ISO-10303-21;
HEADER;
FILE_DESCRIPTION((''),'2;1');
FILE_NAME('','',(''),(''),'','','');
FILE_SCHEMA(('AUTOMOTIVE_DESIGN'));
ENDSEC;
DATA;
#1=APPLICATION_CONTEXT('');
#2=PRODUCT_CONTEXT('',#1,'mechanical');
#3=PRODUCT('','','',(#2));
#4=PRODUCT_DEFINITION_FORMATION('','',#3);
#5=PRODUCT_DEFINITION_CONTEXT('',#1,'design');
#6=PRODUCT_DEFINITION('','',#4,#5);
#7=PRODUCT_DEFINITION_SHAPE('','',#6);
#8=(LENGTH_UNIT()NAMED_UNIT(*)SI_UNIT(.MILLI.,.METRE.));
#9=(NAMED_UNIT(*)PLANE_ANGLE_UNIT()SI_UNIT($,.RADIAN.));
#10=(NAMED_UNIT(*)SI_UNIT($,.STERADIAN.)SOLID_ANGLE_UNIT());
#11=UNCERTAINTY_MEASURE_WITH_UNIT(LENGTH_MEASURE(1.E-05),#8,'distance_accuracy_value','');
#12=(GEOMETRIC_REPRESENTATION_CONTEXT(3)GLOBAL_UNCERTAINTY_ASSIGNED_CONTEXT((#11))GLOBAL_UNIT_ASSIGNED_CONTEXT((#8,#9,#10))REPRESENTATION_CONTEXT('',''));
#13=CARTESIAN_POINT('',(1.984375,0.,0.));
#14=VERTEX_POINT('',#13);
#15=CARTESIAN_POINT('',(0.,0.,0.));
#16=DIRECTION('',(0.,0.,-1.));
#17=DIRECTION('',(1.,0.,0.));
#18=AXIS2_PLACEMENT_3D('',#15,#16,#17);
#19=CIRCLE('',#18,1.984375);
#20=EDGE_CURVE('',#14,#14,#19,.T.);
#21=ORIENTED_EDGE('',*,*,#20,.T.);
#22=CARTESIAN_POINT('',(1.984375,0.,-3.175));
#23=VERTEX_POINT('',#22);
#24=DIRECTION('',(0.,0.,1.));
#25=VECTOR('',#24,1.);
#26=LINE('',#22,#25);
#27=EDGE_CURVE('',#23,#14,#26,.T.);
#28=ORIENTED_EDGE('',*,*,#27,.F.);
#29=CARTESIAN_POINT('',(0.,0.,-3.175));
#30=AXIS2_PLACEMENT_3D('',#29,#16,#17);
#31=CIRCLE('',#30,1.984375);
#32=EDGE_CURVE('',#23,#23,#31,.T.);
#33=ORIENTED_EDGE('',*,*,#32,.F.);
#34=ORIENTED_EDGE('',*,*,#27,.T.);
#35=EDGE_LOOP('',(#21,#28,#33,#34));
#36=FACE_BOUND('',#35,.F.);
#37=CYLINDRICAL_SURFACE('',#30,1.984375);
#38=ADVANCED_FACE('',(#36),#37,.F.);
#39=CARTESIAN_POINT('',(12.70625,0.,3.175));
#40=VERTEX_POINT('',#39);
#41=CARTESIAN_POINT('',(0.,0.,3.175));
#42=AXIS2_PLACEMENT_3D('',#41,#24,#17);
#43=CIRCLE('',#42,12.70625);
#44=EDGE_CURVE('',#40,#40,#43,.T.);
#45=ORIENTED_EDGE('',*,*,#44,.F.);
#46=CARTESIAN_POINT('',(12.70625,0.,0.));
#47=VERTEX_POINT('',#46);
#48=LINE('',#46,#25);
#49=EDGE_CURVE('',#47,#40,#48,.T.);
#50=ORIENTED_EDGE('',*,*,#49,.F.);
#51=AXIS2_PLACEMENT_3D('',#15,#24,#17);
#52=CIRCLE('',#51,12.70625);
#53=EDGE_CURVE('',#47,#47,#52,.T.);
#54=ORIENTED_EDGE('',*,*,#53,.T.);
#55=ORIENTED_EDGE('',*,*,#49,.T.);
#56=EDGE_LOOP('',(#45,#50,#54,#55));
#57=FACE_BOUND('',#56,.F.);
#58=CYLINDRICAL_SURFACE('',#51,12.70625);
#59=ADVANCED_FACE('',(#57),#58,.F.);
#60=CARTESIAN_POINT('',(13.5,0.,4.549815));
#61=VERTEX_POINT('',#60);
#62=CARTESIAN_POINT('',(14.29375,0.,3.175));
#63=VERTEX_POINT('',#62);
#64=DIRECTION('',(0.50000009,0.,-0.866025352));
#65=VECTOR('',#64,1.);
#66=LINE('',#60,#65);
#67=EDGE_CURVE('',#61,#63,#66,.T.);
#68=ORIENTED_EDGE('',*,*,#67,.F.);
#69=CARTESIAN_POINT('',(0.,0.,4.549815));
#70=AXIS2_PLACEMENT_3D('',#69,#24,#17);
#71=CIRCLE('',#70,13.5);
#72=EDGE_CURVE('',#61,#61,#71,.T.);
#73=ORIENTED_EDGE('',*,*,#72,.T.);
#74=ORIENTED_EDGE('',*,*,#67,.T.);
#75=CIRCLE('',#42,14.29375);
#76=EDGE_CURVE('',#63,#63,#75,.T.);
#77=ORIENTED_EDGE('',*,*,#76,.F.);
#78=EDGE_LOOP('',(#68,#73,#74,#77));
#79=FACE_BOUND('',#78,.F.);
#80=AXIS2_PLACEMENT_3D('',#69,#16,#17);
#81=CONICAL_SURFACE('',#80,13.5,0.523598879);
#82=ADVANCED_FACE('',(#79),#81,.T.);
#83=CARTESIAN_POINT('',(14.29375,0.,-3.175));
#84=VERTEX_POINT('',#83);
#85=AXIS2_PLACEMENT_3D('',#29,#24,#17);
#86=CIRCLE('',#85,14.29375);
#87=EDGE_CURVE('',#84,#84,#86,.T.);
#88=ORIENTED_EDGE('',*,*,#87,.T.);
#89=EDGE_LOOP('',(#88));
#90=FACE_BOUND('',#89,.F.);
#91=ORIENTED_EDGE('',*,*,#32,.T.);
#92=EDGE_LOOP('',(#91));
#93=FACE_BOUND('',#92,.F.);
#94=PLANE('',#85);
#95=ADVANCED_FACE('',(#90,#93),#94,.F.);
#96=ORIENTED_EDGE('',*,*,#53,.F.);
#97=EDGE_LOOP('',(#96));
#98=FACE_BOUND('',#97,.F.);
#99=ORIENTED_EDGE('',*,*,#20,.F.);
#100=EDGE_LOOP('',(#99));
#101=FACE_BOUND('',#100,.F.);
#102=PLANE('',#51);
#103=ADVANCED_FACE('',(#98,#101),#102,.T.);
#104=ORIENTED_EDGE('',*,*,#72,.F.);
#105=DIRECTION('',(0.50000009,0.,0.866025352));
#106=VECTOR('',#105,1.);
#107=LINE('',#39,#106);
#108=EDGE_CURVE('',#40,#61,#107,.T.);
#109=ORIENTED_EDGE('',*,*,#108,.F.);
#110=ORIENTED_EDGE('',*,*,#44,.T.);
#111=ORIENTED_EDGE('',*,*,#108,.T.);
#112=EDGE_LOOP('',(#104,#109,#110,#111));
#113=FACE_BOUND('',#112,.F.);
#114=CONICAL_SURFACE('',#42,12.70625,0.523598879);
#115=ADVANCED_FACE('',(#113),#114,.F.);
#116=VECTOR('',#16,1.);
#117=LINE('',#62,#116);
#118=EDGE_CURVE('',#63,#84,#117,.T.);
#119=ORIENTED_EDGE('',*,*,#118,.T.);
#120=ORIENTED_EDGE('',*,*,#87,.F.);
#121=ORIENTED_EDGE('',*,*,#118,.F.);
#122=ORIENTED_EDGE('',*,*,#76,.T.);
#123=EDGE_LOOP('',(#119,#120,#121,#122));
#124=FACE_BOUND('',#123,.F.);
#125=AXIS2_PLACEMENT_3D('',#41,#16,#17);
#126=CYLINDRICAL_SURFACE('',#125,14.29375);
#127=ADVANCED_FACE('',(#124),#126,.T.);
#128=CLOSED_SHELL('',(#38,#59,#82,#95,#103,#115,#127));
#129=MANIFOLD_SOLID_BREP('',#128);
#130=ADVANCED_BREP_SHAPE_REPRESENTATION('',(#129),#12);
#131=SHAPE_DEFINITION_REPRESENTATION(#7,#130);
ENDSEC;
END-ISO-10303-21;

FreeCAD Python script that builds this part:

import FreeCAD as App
import Part
import Sketcher

V = App.Vector
Q = App.Units.Quantity


def add_polygon(sketch, points):
    """Adds a closed chain of lines whose ends are joined by coincident constraints."""
    first, n = sketch.GeometryCount, len(points)
    for a, b in zip(points, points[1:] + points[:1]):
        sketch.addGeometry(Part.LineSegment(App.Vector(*a, 0), App.Vector(*b, 0)), False)
    for i in range(n):
        sketch.addConstraint(Sketcher.Constraint("Coincident", first + i, 2, first + (i + 1) % n, 1))

doc = App.newDocument("Part")
body = doc.addObject("PartDesign::Body", "Body")

# Sketch on XZ plane
sketch1 = body.newObject("Sketcher::SketchObject", "Sketch")
sketch1.AttachmentSupport = (doc.getObject("XZ_Plane"), [""])
sketch1.MapMode = "FlatFace"
add_polygon(sketch1, [(13.5, -4.5), (14.3, -3.2), (14.3, 3.2), (0, 3.2), (0, 0), (12.7, 0), (12.7, -3.2)])  # lines 0-6
sketch1.addConstraint([
    Sketcher.Constraint("Vertical", 1),
    Sketcher.Constraint("Horizontal", 2),
    Sketcher.Constraint("Vertical", 3),
    Sketcher.Constraint("Horizontal", 4),
    Sketcher.Constraint("Vertical", 5),
    Sketcher.Constraint("Coincident", 3, 2, -1, 1),
    Sketcher.Constraint("Horizontal", 0, 2, 5, 2),
    Sketcher.Constraint("Equal", 3, 5),
    Sketcher.Constraint("Equal", 0, 6),
    Sketcher.Constraint("Angle", 0, Q("59.999994 deg")),
    Sketcher.Constraint("DistanceY", 1, 1, 1, 2, Q("0.25 in")),
    Sketcher.Constraint("Distance", 0, Q("0.0625 in")),
    Sketcher.Constraint("DistanceX", 2, 2, 2, 1, 14.29375),
])
revolution = body.newObject("PartDesign::Revolution", "Revolution")
revolution.Profile = sketch1
revolution.ReferenceAxis = (sketch1, ["V_Axis"])
revolution.Angle = 360

# Sketch on XY plane
sketch2 = body.newObject("Sketcher::SketchObject", "Sketch001")
sketch2.AttachmentSupport = (doc.getObject("XY_Plane"), [""])
sketch2.MapMode = "FlatFace"
sketch2.AttachmentOffset = App.Placement(V(0, 0, 0.125 * 25.4), App.Rotation())
sketch2.addGeometry(Part.Circle(V(0, 0, 0), V(0, 0, 1), 2), False)
sketch2.addConstraint([
    Sketcher.Constraint("Coincident", 0, 3, -1, 1),
    Sketcher.Constraint("Diameter", 0, Q("0.15625 in")),
])
pocket1 = body.newObject("PartDesign::Pocket", "Pocket")
pocket1.Profile = sketch2
pocket1.Type = "ThroughAll"
body2 = doc.addObject("PartDesign::Body", "Body001")
doc.recompute()

body.Placement = App.Placement(V(0, 0, 0), App.Rotation(V(1, 0, 0), 180))
boolean = body2.newObject("PartDesign::Boolean", "Boolean")
boolean.Type = "Fuse"
boolean.addObjects([body])

doc.recompute()
